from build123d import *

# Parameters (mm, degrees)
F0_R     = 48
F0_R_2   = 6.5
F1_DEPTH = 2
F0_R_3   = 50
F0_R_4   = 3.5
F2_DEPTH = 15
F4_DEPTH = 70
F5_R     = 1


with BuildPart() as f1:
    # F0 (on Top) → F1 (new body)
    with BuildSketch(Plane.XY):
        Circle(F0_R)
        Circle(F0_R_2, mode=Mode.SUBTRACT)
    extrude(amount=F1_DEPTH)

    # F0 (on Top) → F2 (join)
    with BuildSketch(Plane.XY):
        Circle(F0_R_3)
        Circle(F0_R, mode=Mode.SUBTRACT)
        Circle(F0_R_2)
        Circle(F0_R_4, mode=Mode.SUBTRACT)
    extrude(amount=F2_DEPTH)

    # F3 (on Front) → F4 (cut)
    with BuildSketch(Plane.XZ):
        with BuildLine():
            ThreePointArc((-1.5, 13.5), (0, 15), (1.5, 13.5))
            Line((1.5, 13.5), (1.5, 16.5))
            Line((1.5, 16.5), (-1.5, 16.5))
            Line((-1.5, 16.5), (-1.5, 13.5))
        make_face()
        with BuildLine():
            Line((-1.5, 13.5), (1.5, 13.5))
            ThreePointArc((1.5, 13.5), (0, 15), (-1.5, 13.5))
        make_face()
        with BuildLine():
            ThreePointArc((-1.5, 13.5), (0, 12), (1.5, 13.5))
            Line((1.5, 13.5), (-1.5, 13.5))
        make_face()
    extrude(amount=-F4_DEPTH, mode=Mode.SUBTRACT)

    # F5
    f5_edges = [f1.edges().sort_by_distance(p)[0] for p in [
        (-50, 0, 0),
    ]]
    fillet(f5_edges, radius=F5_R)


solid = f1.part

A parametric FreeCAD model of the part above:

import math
import FreeCAD as App
import Part
import Sketcher


def edges_at(feature, points):
    """Names of the edges that pass closest to the given points."""
    edges = feature.Shape.Edges
    near = lambda p: min(range(len(edges)), key=lambda i: edges[i].distToShape(Part.Vertex(*p))[0])
    return sorted({f"Edge{near(p) + 1}" for p in points})

doc = App.newDocument("Part")
body = doc.addObject("PartDesign::Body", "Body")

# Sketch on XY plane
sketch1 = body.newObject("Sketcher::SketchObject", "Sketch")
sketch1.AttachmentSupport = (doc.getObject("XY_Plane"), [""])
sketch1.MapMode = "FlatFace"
sketch1.addGeometry([
    Part.Circle(App.Vector(0, 0, 0), App.Vector(0, 0, 1), 48),
    Part.Circle(App.Vector(0, 0, 0), App.Vector(0, 0, 1), 6),
], False)
sketch1.addConstraint([
    Sketcher.Constraint("Coincident", 0, 3, -1, 1),
    Sketcher.Constraint("Coincident", 1, 3, -1, 1),
    Sketcher.Constraint("Diameter", 0, 96.0),
    Sketcher.Constraint("Diameter", 1, 13.0),
])
pad1 = body.newObject("PartDesign::Pad", "Pad")
pad1.Profile = sketch1
pad1.Length = 2

# Sketch on XY plane
sketch2 = body.newObject("Sketcher::SketchObject", "Sketch001")
sketch2.AttachmentSupport = (doc.getObject("XY_Plane"), [""])
sketch2.MapMode = "FlatFace"
sketch2.addGeometry([
    Part.Circle(App.Vector(0, 0, 0), App.Vector(0, 0, 1), 50),
    Part.Circle(App.Vector(0, 0, 0), App.Vector(0, 0, 1), 48),
    Part.Circle(App.Vector(0, 0, 0), App.Vector(0, 0, 1), 6.5),
    Part.Circle(App.Vector(0, 0, 0), App.Vector(0, 0, 1), 3.5),
], False)
sketch2.addConstraint([
    Sketcher.Constraint("Coincident", 0, 3, -1, 1),
    Sketcher.Constraint("Coincident", 1, 3, -1, 1),
    Sketcher.Constraint("Coincident", 2, 3, -1, 1),
    Sketcher.Constraint("Coincident", 3, 3, -1, 1),
    Sketcher.Constraint("Diameter", 0, 100.0),
    Sketcher.Constraint("Diameter", 1, 96.0),
    Sketcher.Constraint("Diameter", 2, 13.0),
    Sketcher.Constraint("Diameter", 3, 7.0),
])
pad2 = body.newObject("PartDesign::Pad", "Pad001")
pad2.Profile = sketch2
pad2.Length = 15

# Sketch on XZ plane
sketch3 = body.newObject("Sketcher::SketchObject", "Sketch002")
sketch3.AttachmentSupport = (doc.getObject("XZ_Plane"), [""])
sketch3.MapMode = "FlatFace"
sketch3.addGeometry([
    Part.LineSegment(App.Vector(1.5, 13.5, 0), App.Vector(1.5, 16.5, 0)),
    Part.LineSegment(App.Vector(1.5, 16.5, 0), App.Vector(-1.5, 16.5, 0)),
    Part.LineSegment(App.Vector(-1.5, 16.5, 0), App.Vector(-1.5, 13.5, 0)),
    Part.ArcOfCircle(Part.Circle(App.Vector(0, 13.5, 0), App.Vector(0, 0, 1), 1.5), math.radians(180), math.radians(360)),
], False)
sketch3.addConstraint([
    Sketcher.Constraint("Coincident", 0, 2, 1, 1),
    Sketcher.Constraint("Coincident", 1, 2, 2, 1),
    Sketcher.Constraint("Tangent", 2, 2, 3, 1),
    Sketcher.Constraint("Tangent", 3, 2, 0, 1),
    Sketcher.Constraint("Vertical", 0),
    Sketcher.Constraint("Horizontal", 1),
    Sketcher.Constraint("Vertical", 2),
    Sketcher.Constraint("PointOnObject", 3, 3, -2),
    Sketcher.Constraint("Equal", 1, 0),
    Sketcher.Constraint("Radius", 3, 1.5),
    Sketcher.Constraint("DistanceY", -1, 1, 3, 3, 13.5),
])
pocket1 = body.newObject("PartDesign::Pocket", "Pocket")
pocket1.Profile = sketch3
pocket1.Length = 70
doc.recompute()

fillet = body.newObject("PartDesign::Fillet", "Fillet")
fillet.Base = (pocket1, edges_at(pocket1, [(-50, 0, 0)]))
fillet.Radius = 1

doc.recompute()
